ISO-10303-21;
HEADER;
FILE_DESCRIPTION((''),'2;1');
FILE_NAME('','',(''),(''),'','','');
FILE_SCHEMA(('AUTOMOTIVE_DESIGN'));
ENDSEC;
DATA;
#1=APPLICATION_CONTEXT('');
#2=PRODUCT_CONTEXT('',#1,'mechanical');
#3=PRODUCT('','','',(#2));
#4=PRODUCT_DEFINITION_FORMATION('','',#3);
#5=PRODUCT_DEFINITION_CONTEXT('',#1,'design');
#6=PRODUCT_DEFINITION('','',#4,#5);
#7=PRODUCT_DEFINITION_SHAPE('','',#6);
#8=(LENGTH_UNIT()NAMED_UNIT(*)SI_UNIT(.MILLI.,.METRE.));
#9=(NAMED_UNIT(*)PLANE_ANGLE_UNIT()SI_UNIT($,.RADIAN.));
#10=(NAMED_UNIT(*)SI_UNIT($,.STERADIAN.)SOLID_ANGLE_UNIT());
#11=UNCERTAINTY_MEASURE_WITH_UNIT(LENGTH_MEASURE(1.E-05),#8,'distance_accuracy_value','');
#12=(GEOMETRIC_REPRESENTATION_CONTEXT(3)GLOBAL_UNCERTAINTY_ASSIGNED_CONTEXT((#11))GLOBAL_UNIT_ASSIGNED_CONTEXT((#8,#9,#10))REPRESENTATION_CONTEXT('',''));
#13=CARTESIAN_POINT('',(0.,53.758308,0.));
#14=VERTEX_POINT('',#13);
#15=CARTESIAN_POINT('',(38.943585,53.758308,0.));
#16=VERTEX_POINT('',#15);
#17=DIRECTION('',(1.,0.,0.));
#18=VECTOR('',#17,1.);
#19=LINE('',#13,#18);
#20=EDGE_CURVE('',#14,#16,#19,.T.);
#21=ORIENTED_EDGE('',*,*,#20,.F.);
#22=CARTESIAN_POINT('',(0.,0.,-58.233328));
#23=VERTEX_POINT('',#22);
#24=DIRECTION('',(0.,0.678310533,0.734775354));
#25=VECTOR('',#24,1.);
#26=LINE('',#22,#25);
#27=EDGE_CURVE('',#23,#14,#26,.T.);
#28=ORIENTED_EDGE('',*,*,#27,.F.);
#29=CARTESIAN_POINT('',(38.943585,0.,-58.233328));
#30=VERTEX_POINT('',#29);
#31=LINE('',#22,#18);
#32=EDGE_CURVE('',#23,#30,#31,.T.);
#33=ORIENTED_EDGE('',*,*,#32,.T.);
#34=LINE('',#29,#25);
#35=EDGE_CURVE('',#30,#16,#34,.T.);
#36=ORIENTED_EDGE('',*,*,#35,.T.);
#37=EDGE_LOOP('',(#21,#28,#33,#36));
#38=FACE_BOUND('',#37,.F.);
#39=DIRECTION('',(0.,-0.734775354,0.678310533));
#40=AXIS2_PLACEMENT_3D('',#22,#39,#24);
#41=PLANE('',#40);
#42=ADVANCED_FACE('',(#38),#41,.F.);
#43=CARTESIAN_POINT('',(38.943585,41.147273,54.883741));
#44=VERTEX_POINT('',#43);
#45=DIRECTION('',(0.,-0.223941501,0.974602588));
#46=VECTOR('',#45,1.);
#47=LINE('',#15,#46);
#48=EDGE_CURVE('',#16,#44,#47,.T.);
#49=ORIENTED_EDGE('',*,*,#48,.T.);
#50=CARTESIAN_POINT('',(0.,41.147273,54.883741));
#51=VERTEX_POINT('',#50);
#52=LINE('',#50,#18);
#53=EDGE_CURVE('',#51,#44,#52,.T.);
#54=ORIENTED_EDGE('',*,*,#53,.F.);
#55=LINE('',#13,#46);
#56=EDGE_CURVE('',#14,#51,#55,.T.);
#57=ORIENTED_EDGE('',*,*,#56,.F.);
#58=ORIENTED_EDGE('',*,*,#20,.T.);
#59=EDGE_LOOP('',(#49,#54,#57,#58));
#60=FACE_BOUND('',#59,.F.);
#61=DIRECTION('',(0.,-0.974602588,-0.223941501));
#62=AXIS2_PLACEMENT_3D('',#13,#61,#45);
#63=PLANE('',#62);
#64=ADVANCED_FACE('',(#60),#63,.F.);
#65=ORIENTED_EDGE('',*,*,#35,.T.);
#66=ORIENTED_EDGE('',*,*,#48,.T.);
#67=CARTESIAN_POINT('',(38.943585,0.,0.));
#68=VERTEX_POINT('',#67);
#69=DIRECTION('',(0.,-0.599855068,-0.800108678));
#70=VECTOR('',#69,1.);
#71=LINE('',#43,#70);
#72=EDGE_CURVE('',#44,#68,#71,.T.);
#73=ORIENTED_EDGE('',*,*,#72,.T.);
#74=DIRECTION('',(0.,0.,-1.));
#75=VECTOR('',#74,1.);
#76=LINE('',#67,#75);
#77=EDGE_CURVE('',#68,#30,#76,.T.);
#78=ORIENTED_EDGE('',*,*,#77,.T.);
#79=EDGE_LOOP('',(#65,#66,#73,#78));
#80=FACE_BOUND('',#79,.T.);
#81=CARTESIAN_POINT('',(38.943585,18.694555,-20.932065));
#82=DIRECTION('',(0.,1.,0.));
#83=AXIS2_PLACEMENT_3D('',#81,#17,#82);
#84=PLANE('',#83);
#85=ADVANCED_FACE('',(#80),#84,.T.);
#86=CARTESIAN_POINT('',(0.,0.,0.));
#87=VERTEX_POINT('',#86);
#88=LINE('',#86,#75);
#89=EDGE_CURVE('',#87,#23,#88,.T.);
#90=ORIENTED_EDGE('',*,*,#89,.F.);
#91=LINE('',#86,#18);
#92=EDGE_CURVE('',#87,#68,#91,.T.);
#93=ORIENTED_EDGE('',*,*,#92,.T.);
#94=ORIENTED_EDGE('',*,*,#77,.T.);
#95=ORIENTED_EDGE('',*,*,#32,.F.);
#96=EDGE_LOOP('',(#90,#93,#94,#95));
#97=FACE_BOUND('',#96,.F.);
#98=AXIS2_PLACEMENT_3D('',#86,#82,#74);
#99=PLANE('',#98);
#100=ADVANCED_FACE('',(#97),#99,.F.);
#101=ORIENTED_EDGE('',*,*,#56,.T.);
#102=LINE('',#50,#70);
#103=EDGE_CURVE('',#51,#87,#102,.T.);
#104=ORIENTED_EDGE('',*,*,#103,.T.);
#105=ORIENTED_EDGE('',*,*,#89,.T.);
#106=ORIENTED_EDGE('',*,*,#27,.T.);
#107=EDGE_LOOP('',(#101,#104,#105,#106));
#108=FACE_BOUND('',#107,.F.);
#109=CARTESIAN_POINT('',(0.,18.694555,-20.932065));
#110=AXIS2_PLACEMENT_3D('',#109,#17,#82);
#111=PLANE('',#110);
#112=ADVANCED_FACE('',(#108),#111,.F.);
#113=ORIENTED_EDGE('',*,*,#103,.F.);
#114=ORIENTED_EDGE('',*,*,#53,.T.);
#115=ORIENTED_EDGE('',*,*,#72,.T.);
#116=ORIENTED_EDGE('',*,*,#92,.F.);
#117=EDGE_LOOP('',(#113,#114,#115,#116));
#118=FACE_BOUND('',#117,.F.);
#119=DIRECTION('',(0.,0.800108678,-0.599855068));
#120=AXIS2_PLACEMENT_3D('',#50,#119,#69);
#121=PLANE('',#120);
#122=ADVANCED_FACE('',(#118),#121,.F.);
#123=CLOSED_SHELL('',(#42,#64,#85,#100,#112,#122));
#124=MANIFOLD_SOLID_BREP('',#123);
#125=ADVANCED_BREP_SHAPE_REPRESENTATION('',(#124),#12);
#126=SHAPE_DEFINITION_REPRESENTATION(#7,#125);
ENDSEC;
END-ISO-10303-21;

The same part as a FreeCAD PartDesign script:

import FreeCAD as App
import Part
import Sketcher

V = App.Vector
Q = App.Units.Quantity

doc = App.newDocument("Part")
body = doc.addObject("PartDesign::Body", "Body")

sketch1 = body.newObject("Sketcher::SketchObject", "Sketch")
sketch1.AttachmentSupport = (doc.getObject("YZ_Plane"), [""])
sketch1.MapMode = "FlatFace"
sketch1.addGeometry([
    Part.LineSegment(V(0, 0, 0), V(0, -58.233328, 0)),
    Part.LineSegment(V(0, -58.233328, 0), V(53.758308, 0, 0)),
    Part.LineSegment(V(53.758308, 0, 0), V(41.147273, 54.883741, 0)),
    Part.LineSegment(V(41.147273, 54.883741, 0), V(0, 0, 0)),
], False)
sketch1.addConstraint([
    Sketcher.Constraint("Coincident", 0, 2, 1, 1),
    Sketcher.Constraint("Coincident", 1, 2, 2, 1),
    Sketcher.Constraint("Coincident", 2, 2, 3, 1),
    Sketcher.Constraint("Coincident", 3, 2, 0, 1),
    Sketcher.Constraint("Vertical", 0),
    Sketcher.Constraint("Coincident", 3, 2, -1, 1),
    Sketcher.Constraint("PointOnObject", 1, 2, -1),
    Sketcher.Constraint("Distance", 1, Q("79.253241 mm")),
    Sketcher.Constraint("Distance", 2, Q("56.31397 mm")),
    Sketcher.Constraint("DistanceY", 0, 2, 0, 1, Q("58.233328 mm")),
    Sketcher.Constraint("DistanceY", -1, 1, 2, 2, Q("54.883741 mm")),
])
pad1 = body.newObject("PartDesign::Pad", "Pad")
pad1.Profile = sketch1
pad1.Length = 38.943585

doc.recompute()
